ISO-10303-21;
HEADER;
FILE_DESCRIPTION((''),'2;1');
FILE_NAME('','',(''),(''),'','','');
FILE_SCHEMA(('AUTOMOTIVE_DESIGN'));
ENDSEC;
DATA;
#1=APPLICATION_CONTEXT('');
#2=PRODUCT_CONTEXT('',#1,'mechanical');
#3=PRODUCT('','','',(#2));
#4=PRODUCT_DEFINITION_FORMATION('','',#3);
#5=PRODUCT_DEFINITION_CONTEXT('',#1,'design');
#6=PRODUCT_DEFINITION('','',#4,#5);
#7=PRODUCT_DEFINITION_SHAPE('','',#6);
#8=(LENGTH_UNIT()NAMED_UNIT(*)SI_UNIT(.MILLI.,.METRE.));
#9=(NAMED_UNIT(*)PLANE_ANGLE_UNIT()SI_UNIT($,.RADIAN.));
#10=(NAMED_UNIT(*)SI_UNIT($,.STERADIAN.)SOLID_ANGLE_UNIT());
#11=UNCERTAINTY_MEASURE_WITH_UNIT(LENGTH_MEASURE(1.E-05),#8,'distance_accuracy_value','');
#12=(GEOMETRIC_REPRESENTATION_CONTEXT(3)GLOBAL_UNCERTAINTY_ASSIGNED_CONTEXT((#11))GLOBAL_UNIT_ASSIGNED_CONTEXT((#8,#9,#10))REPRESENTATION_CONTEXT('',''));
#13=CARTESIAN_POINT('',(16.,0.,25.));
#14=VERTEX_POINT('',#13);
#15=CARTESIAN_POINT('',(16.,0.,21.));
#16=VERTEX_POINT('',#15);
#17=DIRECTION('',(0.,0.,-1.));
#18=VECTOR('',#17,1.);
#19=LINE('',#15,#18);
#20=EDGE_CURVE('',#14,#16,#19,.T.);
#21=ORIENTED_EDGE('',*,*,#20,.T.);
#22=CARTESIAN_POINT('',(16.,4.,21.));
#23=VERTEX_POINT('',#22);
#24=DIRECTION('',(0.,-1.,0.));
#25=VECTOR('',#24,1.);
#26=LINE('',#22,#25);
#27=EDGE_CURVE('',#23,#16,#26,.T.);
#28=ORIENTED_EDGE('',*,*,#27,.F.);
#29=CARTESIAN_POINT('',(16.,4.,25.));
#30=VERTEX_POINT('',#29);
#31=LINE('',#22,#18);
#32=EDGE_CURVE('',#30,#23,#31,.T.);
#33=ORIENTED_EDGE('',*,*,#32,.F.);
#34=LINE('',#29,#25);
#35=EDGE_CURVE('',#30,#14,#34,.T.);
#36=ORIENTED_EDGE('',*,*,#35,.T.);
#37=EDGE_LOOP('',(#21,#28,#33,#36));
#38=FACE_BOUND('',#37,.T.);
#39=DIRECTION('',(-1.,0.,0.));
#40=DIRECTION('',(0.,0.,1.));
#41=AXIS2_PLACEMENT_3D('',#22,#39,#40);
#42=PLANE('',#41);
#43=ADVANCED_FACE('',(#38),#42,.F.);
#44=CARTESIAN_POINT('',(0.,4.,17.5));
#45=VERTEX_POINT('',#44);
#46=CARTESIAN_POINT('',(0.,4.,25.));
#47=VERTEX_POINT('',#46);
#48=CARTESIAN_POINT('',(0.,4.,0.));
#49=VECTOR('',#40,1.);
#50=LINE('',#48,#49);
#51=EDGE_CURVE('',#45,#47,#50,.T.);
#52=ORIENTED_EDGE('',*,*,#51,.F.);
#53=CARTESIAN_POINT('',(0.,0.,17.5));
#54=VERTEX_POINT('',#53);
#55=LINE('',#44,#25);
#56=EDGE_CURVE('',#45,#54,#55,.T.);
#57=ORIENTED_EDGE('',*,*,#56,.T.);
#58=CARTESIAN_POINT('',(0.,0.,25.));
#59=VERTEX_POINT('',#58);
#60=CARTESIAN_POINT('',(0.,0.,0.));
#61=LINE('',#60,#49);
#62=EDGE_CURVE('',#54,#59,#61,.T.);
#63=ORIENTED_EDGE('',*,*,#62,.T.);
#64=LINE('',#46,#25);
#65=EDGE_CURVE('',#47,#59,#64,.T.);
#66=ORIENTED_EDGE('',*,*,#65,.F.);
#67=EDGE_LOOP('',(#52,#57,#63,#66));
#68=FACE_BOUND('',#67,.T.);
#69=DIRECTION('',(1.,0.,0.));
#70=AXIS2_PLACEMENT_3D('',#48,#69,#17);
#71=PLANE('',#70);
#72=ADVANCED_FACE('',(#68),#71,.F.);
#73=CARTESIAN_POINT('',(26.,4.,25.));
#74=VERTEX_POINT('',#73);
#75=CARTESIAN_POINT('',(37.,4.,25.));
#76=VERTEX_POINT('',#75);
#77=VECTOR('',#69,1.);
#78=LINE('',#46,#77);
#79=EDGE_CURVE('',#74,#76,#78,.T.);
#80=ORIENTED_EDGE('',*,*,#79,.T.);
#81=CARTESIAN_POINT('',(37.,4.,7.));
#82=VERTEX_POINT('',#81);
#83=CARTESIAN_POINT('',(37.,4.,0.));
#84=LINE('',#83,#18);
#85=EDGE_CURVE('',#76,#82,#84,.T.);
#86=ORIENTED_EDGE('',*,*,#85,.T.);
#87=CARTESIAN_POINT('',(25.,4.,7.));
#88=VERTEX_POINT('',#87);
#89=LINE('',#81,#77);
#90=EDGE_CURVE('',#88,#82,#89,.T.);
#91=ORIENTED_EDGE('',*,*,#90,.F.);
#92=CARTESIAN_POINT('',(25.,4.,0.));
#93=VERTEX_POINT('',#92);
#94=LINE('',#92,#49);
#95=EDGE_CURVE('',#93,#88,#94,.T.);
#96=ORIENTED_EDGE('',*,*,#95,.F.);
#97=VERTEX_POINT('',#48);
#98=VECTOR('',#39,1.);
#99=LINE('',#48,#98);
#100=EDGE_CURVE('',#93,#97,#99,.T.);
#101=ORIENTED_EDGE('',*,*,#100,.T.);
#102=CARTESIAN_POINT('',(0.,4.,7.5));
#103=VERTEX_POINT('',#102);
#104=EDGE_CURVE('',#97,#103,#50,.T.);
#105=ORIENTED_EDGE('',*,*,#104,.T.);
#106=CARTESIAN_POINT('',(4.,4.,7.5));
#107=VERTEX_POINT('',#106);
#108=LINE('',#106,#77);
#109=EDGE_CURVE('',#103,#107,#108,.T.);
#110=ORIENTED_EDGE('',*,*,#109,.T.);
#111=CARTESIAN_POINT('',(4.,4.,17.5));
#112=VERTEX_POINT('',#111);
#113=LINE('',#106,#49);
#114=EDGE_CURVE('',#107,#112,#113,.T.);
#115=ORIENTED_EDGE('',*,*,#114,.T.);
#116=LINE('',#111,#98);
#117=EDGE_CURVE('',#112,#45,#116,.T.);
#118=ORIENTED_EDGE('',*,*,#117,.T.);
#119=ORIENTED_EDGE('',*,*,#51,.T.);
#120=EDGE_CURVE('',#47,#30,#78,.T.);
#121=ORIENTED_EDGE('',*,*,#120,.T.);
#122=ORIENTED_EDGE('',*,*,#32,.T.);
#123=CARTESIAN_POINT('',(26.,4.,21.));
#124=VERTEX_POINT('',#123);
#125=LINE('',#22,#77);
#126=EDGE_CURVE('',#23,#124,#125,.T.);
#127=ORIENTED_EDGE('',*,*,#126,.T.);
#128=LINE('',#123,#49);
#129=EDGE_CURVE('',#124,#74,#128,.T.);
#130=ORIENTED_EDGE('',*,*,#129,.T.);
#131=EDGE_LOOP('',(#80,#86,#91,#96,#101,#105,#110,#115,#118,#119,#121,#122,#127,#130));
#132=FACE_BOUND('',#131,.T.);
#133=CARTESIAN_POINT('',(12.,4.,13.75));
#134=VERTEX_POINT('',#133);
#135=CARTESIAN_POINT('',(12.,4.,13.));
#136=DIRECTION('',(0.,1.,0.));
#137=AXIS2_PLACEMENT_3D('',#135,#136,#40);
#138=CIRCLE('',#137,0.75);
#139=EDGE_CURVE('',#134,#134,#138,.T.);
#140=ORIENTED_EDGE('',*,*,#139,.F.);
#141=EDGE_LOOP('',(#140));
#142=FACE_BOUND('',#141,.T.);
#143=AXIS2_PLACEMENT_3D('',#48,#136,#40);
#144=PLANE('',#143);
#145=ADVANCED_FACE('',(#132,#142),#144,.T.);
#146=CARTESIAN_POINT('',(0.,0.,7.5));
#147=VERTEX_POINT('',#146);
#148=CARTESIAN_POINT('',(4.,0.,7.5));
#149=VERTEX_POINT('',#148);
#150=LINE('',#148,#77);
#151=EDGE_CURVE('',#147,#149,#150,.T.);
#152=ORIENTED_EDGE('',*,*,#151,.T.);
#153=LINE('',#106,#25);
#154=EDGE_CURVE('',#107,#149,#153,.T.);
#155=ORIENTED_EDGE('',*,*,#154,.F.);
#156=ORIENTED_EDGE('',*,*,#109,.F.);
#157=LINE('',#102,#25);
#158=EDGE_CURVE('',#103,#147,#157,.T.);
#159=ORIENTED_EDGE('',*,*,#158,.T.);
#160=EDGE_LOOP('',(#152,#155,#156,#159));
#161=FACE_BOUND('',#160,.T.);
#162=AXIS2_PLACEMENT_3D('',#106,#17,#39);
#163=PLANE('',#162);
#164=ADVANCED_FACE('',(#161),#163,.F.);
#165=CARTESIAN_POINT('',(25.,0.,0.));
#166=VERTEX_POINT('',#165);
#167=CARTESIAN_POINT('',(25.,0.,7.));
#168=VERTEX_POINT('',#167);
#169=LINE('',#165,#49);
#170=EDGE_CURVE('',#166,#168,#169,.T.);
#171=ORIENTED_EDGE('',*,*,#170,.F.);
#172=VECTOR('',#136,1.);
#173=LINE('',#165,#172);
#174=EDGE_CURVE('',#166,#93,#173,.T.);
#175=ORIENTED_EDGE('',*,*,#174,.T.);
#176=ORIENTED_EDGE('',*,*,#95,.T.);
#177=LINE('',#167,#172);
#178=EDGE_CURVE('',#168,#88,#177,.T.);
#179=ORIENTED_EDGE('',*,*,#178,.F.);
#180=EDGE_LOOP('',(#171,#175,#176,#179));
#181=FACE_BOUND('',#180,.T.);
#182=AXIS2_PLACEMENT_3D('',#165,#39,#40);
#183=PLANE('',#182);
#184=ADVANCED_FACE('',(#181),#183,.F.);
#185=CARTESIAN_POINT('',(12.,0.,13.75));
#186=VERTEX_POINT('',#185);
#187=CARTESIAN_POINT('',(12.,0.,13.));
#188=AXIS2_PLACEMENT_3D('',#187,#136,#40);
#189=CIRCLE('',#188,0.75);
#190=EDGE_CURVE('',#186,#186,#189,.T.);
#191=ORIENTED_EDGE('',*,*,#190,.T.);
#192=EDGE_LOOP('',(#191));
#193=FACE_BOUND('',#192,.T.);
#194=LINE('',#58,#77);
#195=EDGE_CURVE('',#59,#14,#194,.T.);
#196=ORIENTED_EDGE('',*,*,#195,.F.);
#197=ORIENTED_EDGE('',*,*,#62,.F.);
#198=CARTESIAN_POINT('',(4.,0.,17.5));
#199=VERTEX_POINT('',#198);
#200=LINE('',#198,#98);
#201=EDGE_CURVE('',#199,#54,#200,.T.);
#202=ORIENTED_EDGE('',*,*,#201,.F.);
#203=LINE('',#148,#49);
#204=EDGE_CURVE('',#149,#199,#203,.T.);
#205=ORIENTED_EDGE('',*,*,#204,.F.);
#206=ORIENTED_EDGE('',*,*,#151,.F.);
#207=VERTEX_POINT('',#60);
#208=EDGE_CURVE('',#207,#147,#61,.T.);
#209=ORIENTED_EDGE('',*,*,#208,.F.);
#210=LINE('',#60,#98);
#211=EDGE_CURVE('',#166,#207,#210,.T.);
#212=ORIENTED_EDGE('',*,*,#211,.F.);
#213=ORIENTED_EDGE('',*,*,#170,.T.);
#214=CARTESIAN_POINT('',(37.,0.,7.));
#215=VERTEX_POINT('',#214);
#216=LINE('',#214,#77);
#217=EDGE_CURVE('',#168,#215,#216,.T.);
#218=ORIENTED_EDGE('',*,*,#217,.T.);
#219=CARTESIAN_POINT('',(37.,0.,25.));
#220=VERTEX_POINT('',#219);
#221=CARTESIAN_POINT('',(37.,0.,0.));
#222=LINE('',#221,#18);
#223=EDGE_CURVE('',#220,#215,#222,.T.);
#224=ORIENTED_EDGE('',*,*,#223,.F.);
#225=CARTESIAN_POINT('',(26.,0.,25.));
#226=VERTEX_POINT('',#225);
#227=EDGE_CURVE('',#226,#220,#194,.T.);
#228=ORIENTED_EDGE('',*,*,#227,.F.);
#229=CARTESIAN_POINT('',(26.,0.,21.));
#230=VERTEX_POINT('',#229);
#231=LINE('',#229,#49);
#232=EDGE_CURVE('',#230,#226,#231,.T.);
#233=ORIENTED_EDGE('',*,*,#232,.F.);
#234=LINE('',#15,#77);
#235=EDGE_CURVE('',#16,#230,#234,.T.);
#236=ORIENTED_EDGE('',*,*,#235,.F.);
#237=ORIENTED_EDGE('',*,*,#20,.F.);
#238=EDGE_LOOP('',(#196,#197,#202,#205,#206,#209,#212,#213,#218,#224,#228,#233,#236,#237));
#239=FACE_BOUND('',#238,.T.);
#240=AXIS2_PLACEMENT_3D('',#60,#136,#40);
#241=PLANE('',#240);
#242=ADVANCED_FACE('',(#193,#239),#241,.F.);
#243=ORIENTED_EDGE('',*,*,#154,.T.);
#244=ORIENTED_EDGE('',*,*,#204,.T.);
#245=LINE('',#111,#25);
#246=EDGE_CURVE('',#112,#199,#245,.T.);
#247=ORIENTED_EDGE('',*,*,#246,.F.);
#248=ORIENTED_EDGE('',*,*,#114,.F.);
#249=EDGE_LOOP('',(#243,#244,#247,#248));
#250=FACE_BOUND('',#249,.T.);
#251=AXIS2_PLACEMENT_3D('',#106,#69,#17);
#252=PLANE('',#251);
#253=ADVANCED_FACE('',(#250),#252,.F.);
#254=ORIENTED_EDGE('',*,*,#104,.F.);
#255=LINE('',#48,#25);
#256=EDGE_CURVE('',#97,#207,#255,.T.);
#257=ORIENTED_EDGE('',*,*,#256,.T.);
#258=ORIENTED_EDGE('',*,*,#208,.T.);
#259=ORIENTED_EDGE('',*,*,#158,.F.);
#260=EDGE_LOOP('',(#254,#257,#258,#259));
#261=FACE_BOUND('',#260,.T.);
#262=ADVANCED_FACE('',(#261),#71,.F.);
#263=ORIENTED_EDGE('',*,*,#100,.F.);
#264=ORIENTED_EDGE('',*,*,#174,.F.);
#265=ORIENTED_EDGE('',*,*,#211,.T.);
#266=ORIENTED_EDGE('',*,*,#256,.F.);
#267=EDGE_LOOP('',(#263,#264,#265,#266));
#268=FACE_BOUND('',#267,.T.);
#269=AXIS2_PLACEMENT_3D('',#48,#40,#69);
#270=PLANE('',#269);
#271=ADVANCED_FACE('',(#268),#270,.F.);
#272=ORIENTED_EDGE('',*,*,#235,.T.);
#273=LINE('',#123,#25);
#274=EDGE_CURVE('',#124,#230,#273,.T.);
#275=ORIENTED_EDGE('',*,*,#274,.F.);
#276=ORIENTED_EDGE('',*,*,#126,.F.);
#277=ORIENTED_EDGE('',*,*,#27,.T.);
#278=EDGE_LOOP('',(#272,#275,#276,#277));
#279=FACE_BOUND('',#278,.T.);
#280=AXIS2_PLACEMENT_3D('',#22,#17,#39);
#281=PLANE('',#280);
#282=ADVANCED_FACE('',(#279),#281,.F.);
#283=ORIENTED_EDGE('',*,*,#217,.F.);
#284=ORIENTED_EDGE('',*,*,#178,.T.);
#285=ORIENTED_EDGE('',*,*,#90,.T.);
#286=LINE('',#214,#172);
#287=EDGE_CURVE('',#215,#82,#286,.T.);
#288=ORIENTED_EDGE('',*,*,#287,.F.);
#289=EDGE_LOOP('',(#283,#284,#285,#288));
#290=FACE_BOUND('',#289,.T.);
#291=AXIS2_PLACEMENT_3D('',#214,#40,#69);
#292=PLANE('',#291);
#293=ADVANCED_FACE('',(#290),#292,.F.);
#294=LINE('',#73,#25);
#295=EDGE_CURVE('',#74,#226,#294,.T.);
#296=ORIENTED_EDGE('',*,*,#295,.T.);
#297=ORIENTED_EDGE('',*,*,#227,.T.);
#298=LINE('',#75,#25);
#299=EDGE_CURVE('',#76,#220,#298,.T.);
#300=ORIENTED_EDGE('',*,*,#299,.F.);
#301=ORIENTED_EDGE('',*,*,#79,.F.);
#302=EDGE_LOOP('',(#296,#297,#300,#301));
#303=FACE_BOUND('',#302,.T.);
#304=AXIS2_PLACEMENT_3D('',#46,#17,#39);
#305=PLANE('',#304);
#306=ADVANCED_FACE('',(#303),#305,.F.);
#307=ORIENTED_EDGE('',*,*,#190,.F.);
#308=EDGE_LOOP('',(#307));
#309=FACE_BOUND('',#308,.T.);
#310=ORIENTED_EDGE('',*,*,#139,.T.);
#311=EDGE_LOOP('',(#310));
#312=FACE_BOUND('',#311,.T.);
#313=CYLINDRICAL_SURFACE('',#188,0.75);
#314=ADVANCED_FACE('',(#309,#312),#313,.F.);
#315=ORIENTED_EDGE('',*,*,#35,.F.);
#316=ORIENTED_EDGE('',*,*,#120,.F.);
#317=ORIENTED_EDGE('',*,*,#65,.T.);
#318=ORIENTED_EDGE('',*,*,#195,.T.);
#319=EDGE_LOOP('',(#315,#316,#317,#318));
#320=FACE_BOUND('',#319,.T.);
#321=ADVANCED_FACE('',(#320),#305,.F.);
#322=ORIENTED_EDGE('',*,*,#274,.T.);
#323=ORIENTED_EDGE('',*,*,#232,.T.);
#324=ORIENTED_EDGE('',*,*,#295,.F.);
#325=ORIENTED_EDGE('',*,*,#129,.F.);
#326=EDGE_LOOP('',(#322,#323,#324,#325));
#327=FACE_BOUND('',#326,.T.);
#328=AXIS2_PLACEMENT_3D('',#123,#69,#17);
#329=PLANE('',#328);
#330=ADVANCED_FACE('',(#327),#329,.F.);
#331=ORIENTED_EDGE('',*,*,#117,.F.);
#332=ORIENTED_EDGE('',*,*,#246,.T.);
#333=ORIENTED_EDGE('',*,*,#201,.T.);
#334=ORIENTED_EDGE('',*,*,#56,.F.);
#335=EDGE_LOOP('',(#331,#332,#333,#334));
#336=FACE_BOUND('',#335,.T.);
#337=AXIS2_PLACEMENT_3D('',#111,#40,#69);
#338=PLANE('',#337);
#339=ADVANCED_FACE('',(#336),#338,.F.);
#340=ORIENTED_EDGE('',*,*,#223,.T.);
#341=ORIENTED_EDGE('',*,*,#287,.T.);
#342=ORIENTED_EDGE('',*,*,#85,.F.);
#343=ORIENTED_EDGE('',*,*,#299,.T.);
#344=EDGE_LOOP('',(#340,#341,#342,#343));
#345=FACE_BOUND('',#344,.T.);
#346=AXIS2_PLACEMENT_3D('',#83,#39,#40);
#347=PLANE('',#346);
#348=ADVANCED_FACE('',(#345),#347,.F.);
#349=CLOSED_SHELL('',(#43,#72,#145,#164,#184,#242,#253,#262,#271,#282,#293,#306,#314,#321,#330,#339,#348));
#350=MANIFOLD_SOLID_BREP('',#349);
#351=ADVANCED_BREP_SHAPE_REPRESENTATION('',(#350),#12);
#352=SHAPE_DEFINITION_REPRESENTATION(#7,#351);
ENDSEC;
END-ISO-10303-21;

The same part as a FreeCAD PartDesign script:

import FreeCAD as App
import Part
import Sketcher

V = App.Vector


def add_polygon(sketch, points):
    """Adds a closed chain of lines whose ends are joined by coincident constraints."""
    first, n = sketch.GeometryCount, len(points)
    for a, b in zip(points, points[1:] + points[:1]):
        sketch.addGeometry(Part.LineSegment(App.Vector(*a, 0), App.Vector(*b, 0)), False)
    for i in range(n):
        sketch.addConstraint(Sketcher.Constraint("Coincident", first + i, 2, first + (i + 1) % n, 1))

doc = App.newDocument("Part")
body = doc.addObject("PartDesign::Body", "Body")

# Sketch on XZ plane
sketch1 = body.newObject("Sketcher::SketchObject", "Sketch")
sketch1.AttachmentSupport = (doc.getObject("XZ_Plane"), [""])
sketch1.MapMode = "FlatFace"
add_polygon(sketch1, [(0, 0), (0, 25), (37, 25), (37, 0)])  # lines 0-3
sketch1.addConstraint(Sketcher.Constraint("Vertical", 0))
sketch1.addConstraint(Sketcher.Constraint("Horizontal", 1))
sketch1.addConstraint(Sketcher.Constraint("Vertical", 2))
sketch1.addConstraint(Sketcher.Constraint("Horizontal", 3))
sketch1.addConstraint(Sketcher.Constraint("Coincident", 3, 2, -1, 1))
sketch1.addConstraint(Sketcher.Constraint("DistanceX", 1, 1, 1, 2, 37.0))
sketch1.addConstraint(Sketcher.Constraint("DistanceY", 0, 1, 0, 2, 25.0))
pad1 = body.newObject("PartDesign::Pad", "Pad")
pad1.Profile = sketch1
pad1.Length = 4
pad1.Reversed = True

# Sketch on XZ plane
sketch2 = body.newObject("Sketcher::SketchObject", "Sketch001")
sketch2.AttachmentSupport = (doc.getObject("XZ_Plane"), [""])
sketch2.MapMode = "FlatFace"
sketch2.AttachmentOffset = App.Placement(V(0, 0, -4), App.Rotation())
add_polygon(sketch2, [(25, 0), (25, 7), (37, 7), (37, 0)])  # lines 0-3
sketch2.addConstraint(Sketcher.Constraint("Vertical", 0))
sketch2.addConstraint(Sketcher.Constraint("Horizontal", 1))
sketch2.addConstraint(Sketcher.Constraint("Vertical", 2))
sketch2.addConstraint(Sketcher.Constraint("Horizontal", 3))
sketch2.addConstraint(Sketcher.Constraint("PointOnObject", 2, 2, -1))
sketch2.addConstraint(Sketcher.Constraint("DistanceX", 1, 1, 1, 2, 12.0))
sketch2.addConstraint(Sketcher.Constraint("DistanceY", 0, 1, 0, 2, 7.0))
sketch2.addConstraint(Sketcher.Constraint("DistanceX", -1, 1, 0, 2, 25.0))
pocket1 = body.newObject("PartDesign::Pocket", "Pocket")
pocket1.Profile = sketch2
pocket1.Type = "ThroughAll"
pocket1.Reversed = True

# Sketch on XZ plane
sketch3 = body.newObject("Sketcher::SketchObject", "Sketch002")
sketch3.AttachmentSupport = (doc.getObject("XZ_Plane"), [""])
sketch3.MapMode = "FlatFace"
add_polygon(sketch3, [(0, 17.5), (0, 7.5), (4, 7.5), (4, 17.5)])  # lines 0-3
sketch3.addConstraint(Sketcher.Constraint("Vertical", 0))
sketch3.addConstraint(Sketcher.Constraint("Horizontal", 1))
sketch3.addConstraint(Sketcher.Constraint("Vertical", 2))
sketch3.addConstraint(Sketcher.Constraint("Horizontal", 3))
sketch3.addConstraint(Sketcher.Constraint("PointOnObject", 0, 2, -2))
sketch3.addConstraint(Sketcher.Constraint("DistanceX", 1, 1, 1, 2, 4.0))
sketch3.addConstraint(Sketcher.Constraint("DistanceY", 0, 2, 0, 1, 10.0))
sketch3.addConstraint(Sketcher.Constraint("DistanceY", -1, 1, 0, 2, 7.5))
pocket2 = body.newObject("PartDesign::Pocket", "Pocket001")
pocket2.Profile = sketch3
pocket2.Type = "ThroughAll"

# Sketch on XZ plane
sketch4 = body.newObject("Sketcher::SketchObject", "Sketch003")
sketch4.AttachmentSupport = (doc.getObject("XZ_Plane"), [""])
sketch4.MapMode = "FlatFace"
add_polygon(sketch4, [(26, 21), (26, 25), (16, 25), (16, 21)])  # lines 0-3
sketch4.addConstraint(Sketcher.Constraint("Vertical", 0))
sketch4.addConstraint(Sketcher.Constraint("Horizontal", 1))
sketch4.addConstraint(Sketcher.Constraint("Vertical", 2))
sketch4.addConstraint(Sketcher.Constraint("Horizontal", 3))
sketch4.addConstraint(Sketcher.Constraint("DistanceX", 1, 2, 1, 1, 10.0))
sketch4.addConstraint(Sketcher.Constraint("DistanceY", 0, 1, 0, 2, 4.0))
sketch4.addConstraint(Sketcher.Constraint("DistanceX", -1, 1, 0, 2, 26.0))
sketch4.addConstraint(Sketcher.Constraint("DistanceY", -1, 1, 0, 2, 25.0))
pocket3 = body.newObject("PartDesign::Pocket", "Pocket002")
pocket3.Profile = sketch4
pocket3.Type = "ThroughAll"

# Sketch on XZ plane
sketch5 = body.newObject("Sketcher::SketchObject", "Sketch004")
sketch5.AttachmentSupport = (doc.getObject("XZ_Plane"), [""])
sketch5.MapMode = "FlatFace"
sketch5.AttachmentOffset = App.Placement(V(0, 0, -4), App.Rotation())
sketch5.addGeometry(Part.Circle(V(12, 13, 0), V(0, 0, 1), 0.8), False)
sketch5.addConstraint(Sketcher.Constraint("Diameter", 0, 1.5))
sketch5.addConstraint(Sketcher.Constraint("DistanceX", -1, 1, 0, 3, 12.0))
sketch5.addConstraint(Sketcher.Constraint("DistanceY", -1, 1, 0, 3, 13.0))
pocket4 = body.newObject("PartDesign::Pocket", "Pocket003")
pocket4.Profile = sketch5
pocket4.Type = "ThroughAll"
pocket4.Reversed = True

doc.recompute()
